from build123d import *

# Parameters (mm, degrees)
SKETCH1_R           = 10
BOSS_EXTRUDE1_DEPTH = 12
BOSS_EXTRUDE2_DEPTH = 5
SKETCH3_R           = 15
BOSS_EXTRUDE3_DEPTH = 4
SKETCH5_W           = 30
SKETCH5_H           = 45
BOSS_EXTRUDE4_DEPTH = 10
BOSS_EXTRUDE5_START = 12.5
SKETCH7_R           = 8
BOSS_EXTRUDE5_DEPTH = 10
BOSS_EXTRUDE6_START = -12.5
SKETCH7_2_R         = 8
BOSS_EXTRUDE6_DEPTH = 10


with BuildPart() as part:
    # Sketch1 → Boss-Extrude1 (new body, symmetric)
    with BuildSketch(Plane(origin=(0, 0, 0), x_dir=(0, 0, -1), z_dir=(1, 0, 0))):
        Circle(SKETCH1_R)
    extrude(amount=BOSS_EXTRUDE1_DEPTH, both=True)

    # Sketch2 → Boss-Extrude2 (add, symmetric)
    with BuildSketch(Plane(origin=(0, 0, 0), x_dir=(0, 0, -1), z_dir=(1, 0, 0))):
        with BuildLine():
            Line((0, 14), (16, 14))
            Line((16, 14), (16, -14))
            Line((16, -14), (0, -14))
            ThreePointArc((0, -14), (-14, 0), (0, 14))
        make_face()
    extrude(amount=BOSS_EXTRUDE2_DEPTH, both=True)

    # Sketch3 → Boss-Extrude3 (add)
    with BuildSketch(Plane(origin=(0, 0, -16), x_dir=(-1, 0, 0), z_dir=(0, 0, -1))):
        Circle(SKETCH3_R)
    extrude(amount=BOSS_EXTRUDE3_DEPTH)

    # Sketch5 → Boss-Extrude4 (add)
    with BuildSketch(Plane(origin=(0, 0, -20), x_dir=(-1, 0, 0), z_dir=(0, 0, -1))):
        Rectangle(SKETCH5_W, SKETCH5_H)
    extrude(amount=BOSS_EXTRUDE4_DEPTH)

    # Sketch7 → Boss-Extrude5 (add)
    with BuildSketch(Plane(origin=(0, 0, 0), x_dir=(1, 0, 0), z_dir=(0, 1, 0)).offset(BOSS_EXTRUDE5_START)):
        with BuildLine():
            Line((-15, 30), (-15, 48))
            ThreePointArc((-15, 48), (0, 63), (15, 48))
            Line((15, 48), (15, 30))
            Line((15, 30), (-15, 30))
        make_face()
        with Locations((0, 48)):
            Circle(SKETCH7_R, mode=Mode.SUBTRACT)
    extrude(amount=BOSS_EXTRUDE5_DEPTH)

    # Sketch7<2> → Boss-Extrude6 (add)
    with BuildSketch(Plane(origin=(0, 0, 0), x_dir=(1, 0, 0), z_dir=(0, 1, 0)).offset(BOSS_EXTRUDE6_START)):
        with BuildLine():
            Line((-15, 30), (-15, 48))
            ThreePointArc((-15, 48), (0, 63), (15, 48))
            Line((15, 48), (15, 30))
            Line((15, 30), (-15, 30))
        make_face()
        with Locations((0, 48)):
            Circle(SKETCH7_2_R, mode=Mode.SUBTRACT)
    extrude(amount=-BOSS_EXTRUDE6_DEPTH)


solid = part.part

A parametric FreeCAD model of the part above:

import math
import FreeCAD as App
import Part
import Sketcher
from FreeCAD import Vector
Q = App.Units.Quantity

doc = App.newDocument("Part")
body = doc.addObject("PartDesign::Body", "Body")

sketch1 = body.newObject("Sketcher::SketchObject", "Sketch")
sketch1.AttachmentSupport = (doc.getObject("YZ_Plane"), [""])
sketch1.MapMode = "FlatFace"
sketch1.addGeometry(Part.Circle(Vector(0, 0, 0), Vector(0, 0, 1), 10), False)
sketch1.addConstraint([
    Sketcher.Constraint("Coincident", 0, 3, -1, 1),
    Sketcher.Constraint("Diameter", 0, Q("20 mm")),
])
pad1 = body.newObject("PartDesign::Pad", "Pad")
pad1.Profile = sketch1
pad1.Length = 24
pad1.Midplane = True

sketch2 = body.newObject("Sketcher::SketchObject", "Sketch001")
sketch2.AttachmentSupport = (doc.getObject("YZ_Plane"), [""])
sketch2.MapMode = "FlatFace"
sketch2.addGeometry([
    Part.LineSegment(Vector(14, -16, 0), Vector(14, 0, 0)),
    Part.ArcOfCircle(Part.Circle(Vector(0, 0, 0), Vector(0, 0, 1), 14), math.radians(0), math.radians(180)),
    Part.LineSegment(Vector(-14, 0, 0), Vector(-14, -16, 0)),
    Part.LineSegment(Vector(-14, -16, 0), Vector(14, -16, 0)),
], False)
sketch2.addConstraint([
    Sketcher.Constraint("Tangent", 0, 2, 1, 1),
    Sketcher.Constraint("Tangent", 1, 2, 2, 1),
    Sketcher.Constraint("Coincident", 2, 2, 3, 1),
    Sketcher.Constraint("Coincident", 3, 2, 0, 1),
    Sketcher.Constraint("Vertical", 0),
    Sketcher.Constraint("Vertical", 2),
    Sketcher.Constraint("Horizontal", 3),
    Sketcher.Constraint("Coincident", 1, 3, -1, 1),
    Sketcher.Constraint("Radius", 1, Q("14 mm")),
    Sketcher.Constraint("DistanceY", 0, 1, 0, 2, Q("16 mm")),
])
pad2 = body.newObject("PartDesign::Pad", "Pad001")
pad2.Profile = sketch2
pad2.Length = 10
pad2.Midplane = True

sketch3 = body.newObject("Sketcher::SketchObject", "Sketch002")
sketch3.AttachmentSupport = (doc.getObject("XY_Plane"), [""])
sketch3.MapMode = "FlatFace"
sketch3.AttachmentOffset = App.Placement(Vector(0, 0, -16), App.Rotation())
sketch3.addGeometry(Part.Circle(Vector(0, 0, 0), Vector(0, 0, 1), 15), False)
sketch3.addConstraint([
    Sketcher.Constraint("Coincident", 0, 3, -1, 1),
    Sketcher.Constraint("Diameter", 0, Q("30 mm")),
])
pad3 = body.newObject("PartDesign::Pad", "Pad002")
pad3.Profile = sketch3
pad3.Length = 4
pad3.Reversed = True

sketch4 = body.newObject("Sketcher::SketchObject", "Sketch003")
sketch4.AttachmentSupport = (doc.getObject("XY_Plane"), [""])
sketch4.MapMode = "FlatFace"
sketch4.AttachmentOffset = App.Placement(Vector(0, 0, -20), App.Rotation())
sketch4.addGeometry([
    Part.LineSegment(Vector(15, 22.5, 0), Vector(15, -22.5, 0)),
    Part.LineSegment(Vector(15, -22.5, 0), Vector(-15, -22.5, 0)),
    Part.LineSegment(Vector(-15, -22.5, 0), Vector(-15, 22.5, 0)),
    Part.LineSegment(Vector(-15, 22.5, 0), Vector(15, 22.5, 0)),
], False)
sketch4.addConstraint([
    Sketcher.Constraint("Coincident", 0, 2, 1, 1),
    Sketcher.Constraint("Coincident", 1, 2, 2, 1),
    Sketcher.Constraint("Coincident", 2, 2, 3, 1),
    Sketcher.Constraint("Coincident", 3, 2, 0, 1),
    Sketcher.Constraint("Vertical", 0),
    Sketcher.Constraint("Horizontal", 1),
    Sketcher.Constraint("Vertical", 2),
    Sketcher.Constraint("Horizontal", 3),
    Sketcher.Constraint("Symmetric", 0, 2, 2, 2, -1, 1),
    Sketcher.Constraint("DistanceX", 1, 2, 1, 1, Q("30 mm")),
    Sketcher.Constraint("DistanceY", 0, 2, 0, 1, Q("45 mm")),
])
pad4 = body.newObject("PartDesign::Pad", "Pad003")
pad4.Profile = sketch4
pad4.Length = 10
pad4.Reversed = True

sketch5 = body.newObject("Sketcher::SketchObject", "Sketch004")
sketch5.AttachmentSupport = (doc.getObject("XZ_Plane"), [""])
sketch5.MapMode = "FlatFace"
sketch5.AttachmentOffset = App.Placement(Vector(0, 0, -12.5), App.Rotation())
sketch5.addGeometry([
    Part.LineSegment(Vector(-15, -48, 0), Vector(-15, -30, 0)),
    Part.LineSegment(Vector(-15, -30, 0), Vector(15, -30, 0)),
    Part.LineSegment(Vector(15, -30, 0), Vector(15, -48, 0)),
    Part.ArcOfCircle(Part.Circle(Vector(0, -48, 0), Vector(0, 0, 1), 15), math.radians(180), math.radians(360)),
    Part.Circle(Vector(0, -48, 0), Vector(0, 0, 1), 8),
], False)
sketch5.addConstraint([
    Sketcher.Constraint("Coincident", 0, 2, 1, 1),
    Sketcher.Constraint("Coincident", 1, 2, 2, 1),
    Sketcher.Constraint("Tangent", 2, 2, 3, 2),
    Sketcher.Constraint("Tangent", 3, 1, 0, 1),
    Sketcher.Constraint("Vertical", 0),
    Sketcher.Constraint("Horizontal", 1),
    Sketcher.Constraint("Vertical", 2),
    Sketcher.Constraint("Coincident", 4, 3, 3, 3),
    Sketcher.Constraint("PointOnObject", 3, 3, -2),
    Sketcher.Constraint("Diameter", 4, Q("16 mm")),
    Sketcher.Constraint("Radius", 3, Q("15 mm")),
    Sketcher.Constraint("DistanceY", 0, 1, 0, 2, Q("18 mm")),
    Sketcher.Constraint("DistanceY", 3, 3, -1, 1, Q("48 mm")),
])
pad5 = body.newObject("PartDesign::Pad", "Pad004")
pad5.Profile = sketch5
pad5.Length = 10
pad5.Reversed = True

sketch6 = body.newObject("Sketcher::SketchObject", "Sketch005")
sketch6.AttachmentSupport = (doc.getObject("XZ_Plane"), [""])
sketch6.MapMode = "FlatFace"
sketch6.AttachmentOffset = App.Placement(Vector(0, 0, 12.5), App.Rotation())
sketch6.addGeometry([
    Part.LineSegment(Vector(-15, -48, 0), Vector(-15, -30, 0)),
    Part.LineSegment(Vector(-15, -30, 0), Vector(15, -30, 0)),
    Part.LineSegment(Vector(15, -30, 0), Vector(15, -48, 0)),
    Part.ArcOfCircle(Part.Circle(Vector(0, -48, 0), Vector(0, 0, 1), 15), math.radians(180), math.radians(360)),
    Part.Circle(Vector(0, -48, 0), Vector(0, 0, 1), 8),
], False)
sketch6.addConstraint([
    Sketcher.Constraint("Coincident", 0, 2, 1, 1),
    Sketcher.Constraint("Coincident", 1, 2, 2, 1),
    Sketcher.Constraint("Tangent", 2, 2, 3, 2),
    Sketcher.Constraint("Tangent", 3, 1, 0, 1),
    Sketcher.Constraint("Vertical", 0),
    Sketcher.Constraint("Horizontal", 1),
    Sketcher.Constraint("Vertical", 2),
    Sketcher.Constraint("Coincident", 4, 3, 3, 3),
    Sketcher.Constraint("PointOnObject", 3, 3, -2),
    Sketcher.Constraint("Diameter", 4, Q("16 mm")),
    Sketcher.Constraint("Radius", 3, Q("15 mm")),
    Sketcher.Constraint("DistanceY", 0, 1, 0, 2, Q("18 mm")),
    Sketcher.Constraint("DistanceY", 3, 3, -1, 1, Q("48 mm")),
])
pad6 = body.newObject("PartDesign::Pad", "Pad005")
pad6.Profile = sketch6
pad6.Length = 10

doc.recompute()
